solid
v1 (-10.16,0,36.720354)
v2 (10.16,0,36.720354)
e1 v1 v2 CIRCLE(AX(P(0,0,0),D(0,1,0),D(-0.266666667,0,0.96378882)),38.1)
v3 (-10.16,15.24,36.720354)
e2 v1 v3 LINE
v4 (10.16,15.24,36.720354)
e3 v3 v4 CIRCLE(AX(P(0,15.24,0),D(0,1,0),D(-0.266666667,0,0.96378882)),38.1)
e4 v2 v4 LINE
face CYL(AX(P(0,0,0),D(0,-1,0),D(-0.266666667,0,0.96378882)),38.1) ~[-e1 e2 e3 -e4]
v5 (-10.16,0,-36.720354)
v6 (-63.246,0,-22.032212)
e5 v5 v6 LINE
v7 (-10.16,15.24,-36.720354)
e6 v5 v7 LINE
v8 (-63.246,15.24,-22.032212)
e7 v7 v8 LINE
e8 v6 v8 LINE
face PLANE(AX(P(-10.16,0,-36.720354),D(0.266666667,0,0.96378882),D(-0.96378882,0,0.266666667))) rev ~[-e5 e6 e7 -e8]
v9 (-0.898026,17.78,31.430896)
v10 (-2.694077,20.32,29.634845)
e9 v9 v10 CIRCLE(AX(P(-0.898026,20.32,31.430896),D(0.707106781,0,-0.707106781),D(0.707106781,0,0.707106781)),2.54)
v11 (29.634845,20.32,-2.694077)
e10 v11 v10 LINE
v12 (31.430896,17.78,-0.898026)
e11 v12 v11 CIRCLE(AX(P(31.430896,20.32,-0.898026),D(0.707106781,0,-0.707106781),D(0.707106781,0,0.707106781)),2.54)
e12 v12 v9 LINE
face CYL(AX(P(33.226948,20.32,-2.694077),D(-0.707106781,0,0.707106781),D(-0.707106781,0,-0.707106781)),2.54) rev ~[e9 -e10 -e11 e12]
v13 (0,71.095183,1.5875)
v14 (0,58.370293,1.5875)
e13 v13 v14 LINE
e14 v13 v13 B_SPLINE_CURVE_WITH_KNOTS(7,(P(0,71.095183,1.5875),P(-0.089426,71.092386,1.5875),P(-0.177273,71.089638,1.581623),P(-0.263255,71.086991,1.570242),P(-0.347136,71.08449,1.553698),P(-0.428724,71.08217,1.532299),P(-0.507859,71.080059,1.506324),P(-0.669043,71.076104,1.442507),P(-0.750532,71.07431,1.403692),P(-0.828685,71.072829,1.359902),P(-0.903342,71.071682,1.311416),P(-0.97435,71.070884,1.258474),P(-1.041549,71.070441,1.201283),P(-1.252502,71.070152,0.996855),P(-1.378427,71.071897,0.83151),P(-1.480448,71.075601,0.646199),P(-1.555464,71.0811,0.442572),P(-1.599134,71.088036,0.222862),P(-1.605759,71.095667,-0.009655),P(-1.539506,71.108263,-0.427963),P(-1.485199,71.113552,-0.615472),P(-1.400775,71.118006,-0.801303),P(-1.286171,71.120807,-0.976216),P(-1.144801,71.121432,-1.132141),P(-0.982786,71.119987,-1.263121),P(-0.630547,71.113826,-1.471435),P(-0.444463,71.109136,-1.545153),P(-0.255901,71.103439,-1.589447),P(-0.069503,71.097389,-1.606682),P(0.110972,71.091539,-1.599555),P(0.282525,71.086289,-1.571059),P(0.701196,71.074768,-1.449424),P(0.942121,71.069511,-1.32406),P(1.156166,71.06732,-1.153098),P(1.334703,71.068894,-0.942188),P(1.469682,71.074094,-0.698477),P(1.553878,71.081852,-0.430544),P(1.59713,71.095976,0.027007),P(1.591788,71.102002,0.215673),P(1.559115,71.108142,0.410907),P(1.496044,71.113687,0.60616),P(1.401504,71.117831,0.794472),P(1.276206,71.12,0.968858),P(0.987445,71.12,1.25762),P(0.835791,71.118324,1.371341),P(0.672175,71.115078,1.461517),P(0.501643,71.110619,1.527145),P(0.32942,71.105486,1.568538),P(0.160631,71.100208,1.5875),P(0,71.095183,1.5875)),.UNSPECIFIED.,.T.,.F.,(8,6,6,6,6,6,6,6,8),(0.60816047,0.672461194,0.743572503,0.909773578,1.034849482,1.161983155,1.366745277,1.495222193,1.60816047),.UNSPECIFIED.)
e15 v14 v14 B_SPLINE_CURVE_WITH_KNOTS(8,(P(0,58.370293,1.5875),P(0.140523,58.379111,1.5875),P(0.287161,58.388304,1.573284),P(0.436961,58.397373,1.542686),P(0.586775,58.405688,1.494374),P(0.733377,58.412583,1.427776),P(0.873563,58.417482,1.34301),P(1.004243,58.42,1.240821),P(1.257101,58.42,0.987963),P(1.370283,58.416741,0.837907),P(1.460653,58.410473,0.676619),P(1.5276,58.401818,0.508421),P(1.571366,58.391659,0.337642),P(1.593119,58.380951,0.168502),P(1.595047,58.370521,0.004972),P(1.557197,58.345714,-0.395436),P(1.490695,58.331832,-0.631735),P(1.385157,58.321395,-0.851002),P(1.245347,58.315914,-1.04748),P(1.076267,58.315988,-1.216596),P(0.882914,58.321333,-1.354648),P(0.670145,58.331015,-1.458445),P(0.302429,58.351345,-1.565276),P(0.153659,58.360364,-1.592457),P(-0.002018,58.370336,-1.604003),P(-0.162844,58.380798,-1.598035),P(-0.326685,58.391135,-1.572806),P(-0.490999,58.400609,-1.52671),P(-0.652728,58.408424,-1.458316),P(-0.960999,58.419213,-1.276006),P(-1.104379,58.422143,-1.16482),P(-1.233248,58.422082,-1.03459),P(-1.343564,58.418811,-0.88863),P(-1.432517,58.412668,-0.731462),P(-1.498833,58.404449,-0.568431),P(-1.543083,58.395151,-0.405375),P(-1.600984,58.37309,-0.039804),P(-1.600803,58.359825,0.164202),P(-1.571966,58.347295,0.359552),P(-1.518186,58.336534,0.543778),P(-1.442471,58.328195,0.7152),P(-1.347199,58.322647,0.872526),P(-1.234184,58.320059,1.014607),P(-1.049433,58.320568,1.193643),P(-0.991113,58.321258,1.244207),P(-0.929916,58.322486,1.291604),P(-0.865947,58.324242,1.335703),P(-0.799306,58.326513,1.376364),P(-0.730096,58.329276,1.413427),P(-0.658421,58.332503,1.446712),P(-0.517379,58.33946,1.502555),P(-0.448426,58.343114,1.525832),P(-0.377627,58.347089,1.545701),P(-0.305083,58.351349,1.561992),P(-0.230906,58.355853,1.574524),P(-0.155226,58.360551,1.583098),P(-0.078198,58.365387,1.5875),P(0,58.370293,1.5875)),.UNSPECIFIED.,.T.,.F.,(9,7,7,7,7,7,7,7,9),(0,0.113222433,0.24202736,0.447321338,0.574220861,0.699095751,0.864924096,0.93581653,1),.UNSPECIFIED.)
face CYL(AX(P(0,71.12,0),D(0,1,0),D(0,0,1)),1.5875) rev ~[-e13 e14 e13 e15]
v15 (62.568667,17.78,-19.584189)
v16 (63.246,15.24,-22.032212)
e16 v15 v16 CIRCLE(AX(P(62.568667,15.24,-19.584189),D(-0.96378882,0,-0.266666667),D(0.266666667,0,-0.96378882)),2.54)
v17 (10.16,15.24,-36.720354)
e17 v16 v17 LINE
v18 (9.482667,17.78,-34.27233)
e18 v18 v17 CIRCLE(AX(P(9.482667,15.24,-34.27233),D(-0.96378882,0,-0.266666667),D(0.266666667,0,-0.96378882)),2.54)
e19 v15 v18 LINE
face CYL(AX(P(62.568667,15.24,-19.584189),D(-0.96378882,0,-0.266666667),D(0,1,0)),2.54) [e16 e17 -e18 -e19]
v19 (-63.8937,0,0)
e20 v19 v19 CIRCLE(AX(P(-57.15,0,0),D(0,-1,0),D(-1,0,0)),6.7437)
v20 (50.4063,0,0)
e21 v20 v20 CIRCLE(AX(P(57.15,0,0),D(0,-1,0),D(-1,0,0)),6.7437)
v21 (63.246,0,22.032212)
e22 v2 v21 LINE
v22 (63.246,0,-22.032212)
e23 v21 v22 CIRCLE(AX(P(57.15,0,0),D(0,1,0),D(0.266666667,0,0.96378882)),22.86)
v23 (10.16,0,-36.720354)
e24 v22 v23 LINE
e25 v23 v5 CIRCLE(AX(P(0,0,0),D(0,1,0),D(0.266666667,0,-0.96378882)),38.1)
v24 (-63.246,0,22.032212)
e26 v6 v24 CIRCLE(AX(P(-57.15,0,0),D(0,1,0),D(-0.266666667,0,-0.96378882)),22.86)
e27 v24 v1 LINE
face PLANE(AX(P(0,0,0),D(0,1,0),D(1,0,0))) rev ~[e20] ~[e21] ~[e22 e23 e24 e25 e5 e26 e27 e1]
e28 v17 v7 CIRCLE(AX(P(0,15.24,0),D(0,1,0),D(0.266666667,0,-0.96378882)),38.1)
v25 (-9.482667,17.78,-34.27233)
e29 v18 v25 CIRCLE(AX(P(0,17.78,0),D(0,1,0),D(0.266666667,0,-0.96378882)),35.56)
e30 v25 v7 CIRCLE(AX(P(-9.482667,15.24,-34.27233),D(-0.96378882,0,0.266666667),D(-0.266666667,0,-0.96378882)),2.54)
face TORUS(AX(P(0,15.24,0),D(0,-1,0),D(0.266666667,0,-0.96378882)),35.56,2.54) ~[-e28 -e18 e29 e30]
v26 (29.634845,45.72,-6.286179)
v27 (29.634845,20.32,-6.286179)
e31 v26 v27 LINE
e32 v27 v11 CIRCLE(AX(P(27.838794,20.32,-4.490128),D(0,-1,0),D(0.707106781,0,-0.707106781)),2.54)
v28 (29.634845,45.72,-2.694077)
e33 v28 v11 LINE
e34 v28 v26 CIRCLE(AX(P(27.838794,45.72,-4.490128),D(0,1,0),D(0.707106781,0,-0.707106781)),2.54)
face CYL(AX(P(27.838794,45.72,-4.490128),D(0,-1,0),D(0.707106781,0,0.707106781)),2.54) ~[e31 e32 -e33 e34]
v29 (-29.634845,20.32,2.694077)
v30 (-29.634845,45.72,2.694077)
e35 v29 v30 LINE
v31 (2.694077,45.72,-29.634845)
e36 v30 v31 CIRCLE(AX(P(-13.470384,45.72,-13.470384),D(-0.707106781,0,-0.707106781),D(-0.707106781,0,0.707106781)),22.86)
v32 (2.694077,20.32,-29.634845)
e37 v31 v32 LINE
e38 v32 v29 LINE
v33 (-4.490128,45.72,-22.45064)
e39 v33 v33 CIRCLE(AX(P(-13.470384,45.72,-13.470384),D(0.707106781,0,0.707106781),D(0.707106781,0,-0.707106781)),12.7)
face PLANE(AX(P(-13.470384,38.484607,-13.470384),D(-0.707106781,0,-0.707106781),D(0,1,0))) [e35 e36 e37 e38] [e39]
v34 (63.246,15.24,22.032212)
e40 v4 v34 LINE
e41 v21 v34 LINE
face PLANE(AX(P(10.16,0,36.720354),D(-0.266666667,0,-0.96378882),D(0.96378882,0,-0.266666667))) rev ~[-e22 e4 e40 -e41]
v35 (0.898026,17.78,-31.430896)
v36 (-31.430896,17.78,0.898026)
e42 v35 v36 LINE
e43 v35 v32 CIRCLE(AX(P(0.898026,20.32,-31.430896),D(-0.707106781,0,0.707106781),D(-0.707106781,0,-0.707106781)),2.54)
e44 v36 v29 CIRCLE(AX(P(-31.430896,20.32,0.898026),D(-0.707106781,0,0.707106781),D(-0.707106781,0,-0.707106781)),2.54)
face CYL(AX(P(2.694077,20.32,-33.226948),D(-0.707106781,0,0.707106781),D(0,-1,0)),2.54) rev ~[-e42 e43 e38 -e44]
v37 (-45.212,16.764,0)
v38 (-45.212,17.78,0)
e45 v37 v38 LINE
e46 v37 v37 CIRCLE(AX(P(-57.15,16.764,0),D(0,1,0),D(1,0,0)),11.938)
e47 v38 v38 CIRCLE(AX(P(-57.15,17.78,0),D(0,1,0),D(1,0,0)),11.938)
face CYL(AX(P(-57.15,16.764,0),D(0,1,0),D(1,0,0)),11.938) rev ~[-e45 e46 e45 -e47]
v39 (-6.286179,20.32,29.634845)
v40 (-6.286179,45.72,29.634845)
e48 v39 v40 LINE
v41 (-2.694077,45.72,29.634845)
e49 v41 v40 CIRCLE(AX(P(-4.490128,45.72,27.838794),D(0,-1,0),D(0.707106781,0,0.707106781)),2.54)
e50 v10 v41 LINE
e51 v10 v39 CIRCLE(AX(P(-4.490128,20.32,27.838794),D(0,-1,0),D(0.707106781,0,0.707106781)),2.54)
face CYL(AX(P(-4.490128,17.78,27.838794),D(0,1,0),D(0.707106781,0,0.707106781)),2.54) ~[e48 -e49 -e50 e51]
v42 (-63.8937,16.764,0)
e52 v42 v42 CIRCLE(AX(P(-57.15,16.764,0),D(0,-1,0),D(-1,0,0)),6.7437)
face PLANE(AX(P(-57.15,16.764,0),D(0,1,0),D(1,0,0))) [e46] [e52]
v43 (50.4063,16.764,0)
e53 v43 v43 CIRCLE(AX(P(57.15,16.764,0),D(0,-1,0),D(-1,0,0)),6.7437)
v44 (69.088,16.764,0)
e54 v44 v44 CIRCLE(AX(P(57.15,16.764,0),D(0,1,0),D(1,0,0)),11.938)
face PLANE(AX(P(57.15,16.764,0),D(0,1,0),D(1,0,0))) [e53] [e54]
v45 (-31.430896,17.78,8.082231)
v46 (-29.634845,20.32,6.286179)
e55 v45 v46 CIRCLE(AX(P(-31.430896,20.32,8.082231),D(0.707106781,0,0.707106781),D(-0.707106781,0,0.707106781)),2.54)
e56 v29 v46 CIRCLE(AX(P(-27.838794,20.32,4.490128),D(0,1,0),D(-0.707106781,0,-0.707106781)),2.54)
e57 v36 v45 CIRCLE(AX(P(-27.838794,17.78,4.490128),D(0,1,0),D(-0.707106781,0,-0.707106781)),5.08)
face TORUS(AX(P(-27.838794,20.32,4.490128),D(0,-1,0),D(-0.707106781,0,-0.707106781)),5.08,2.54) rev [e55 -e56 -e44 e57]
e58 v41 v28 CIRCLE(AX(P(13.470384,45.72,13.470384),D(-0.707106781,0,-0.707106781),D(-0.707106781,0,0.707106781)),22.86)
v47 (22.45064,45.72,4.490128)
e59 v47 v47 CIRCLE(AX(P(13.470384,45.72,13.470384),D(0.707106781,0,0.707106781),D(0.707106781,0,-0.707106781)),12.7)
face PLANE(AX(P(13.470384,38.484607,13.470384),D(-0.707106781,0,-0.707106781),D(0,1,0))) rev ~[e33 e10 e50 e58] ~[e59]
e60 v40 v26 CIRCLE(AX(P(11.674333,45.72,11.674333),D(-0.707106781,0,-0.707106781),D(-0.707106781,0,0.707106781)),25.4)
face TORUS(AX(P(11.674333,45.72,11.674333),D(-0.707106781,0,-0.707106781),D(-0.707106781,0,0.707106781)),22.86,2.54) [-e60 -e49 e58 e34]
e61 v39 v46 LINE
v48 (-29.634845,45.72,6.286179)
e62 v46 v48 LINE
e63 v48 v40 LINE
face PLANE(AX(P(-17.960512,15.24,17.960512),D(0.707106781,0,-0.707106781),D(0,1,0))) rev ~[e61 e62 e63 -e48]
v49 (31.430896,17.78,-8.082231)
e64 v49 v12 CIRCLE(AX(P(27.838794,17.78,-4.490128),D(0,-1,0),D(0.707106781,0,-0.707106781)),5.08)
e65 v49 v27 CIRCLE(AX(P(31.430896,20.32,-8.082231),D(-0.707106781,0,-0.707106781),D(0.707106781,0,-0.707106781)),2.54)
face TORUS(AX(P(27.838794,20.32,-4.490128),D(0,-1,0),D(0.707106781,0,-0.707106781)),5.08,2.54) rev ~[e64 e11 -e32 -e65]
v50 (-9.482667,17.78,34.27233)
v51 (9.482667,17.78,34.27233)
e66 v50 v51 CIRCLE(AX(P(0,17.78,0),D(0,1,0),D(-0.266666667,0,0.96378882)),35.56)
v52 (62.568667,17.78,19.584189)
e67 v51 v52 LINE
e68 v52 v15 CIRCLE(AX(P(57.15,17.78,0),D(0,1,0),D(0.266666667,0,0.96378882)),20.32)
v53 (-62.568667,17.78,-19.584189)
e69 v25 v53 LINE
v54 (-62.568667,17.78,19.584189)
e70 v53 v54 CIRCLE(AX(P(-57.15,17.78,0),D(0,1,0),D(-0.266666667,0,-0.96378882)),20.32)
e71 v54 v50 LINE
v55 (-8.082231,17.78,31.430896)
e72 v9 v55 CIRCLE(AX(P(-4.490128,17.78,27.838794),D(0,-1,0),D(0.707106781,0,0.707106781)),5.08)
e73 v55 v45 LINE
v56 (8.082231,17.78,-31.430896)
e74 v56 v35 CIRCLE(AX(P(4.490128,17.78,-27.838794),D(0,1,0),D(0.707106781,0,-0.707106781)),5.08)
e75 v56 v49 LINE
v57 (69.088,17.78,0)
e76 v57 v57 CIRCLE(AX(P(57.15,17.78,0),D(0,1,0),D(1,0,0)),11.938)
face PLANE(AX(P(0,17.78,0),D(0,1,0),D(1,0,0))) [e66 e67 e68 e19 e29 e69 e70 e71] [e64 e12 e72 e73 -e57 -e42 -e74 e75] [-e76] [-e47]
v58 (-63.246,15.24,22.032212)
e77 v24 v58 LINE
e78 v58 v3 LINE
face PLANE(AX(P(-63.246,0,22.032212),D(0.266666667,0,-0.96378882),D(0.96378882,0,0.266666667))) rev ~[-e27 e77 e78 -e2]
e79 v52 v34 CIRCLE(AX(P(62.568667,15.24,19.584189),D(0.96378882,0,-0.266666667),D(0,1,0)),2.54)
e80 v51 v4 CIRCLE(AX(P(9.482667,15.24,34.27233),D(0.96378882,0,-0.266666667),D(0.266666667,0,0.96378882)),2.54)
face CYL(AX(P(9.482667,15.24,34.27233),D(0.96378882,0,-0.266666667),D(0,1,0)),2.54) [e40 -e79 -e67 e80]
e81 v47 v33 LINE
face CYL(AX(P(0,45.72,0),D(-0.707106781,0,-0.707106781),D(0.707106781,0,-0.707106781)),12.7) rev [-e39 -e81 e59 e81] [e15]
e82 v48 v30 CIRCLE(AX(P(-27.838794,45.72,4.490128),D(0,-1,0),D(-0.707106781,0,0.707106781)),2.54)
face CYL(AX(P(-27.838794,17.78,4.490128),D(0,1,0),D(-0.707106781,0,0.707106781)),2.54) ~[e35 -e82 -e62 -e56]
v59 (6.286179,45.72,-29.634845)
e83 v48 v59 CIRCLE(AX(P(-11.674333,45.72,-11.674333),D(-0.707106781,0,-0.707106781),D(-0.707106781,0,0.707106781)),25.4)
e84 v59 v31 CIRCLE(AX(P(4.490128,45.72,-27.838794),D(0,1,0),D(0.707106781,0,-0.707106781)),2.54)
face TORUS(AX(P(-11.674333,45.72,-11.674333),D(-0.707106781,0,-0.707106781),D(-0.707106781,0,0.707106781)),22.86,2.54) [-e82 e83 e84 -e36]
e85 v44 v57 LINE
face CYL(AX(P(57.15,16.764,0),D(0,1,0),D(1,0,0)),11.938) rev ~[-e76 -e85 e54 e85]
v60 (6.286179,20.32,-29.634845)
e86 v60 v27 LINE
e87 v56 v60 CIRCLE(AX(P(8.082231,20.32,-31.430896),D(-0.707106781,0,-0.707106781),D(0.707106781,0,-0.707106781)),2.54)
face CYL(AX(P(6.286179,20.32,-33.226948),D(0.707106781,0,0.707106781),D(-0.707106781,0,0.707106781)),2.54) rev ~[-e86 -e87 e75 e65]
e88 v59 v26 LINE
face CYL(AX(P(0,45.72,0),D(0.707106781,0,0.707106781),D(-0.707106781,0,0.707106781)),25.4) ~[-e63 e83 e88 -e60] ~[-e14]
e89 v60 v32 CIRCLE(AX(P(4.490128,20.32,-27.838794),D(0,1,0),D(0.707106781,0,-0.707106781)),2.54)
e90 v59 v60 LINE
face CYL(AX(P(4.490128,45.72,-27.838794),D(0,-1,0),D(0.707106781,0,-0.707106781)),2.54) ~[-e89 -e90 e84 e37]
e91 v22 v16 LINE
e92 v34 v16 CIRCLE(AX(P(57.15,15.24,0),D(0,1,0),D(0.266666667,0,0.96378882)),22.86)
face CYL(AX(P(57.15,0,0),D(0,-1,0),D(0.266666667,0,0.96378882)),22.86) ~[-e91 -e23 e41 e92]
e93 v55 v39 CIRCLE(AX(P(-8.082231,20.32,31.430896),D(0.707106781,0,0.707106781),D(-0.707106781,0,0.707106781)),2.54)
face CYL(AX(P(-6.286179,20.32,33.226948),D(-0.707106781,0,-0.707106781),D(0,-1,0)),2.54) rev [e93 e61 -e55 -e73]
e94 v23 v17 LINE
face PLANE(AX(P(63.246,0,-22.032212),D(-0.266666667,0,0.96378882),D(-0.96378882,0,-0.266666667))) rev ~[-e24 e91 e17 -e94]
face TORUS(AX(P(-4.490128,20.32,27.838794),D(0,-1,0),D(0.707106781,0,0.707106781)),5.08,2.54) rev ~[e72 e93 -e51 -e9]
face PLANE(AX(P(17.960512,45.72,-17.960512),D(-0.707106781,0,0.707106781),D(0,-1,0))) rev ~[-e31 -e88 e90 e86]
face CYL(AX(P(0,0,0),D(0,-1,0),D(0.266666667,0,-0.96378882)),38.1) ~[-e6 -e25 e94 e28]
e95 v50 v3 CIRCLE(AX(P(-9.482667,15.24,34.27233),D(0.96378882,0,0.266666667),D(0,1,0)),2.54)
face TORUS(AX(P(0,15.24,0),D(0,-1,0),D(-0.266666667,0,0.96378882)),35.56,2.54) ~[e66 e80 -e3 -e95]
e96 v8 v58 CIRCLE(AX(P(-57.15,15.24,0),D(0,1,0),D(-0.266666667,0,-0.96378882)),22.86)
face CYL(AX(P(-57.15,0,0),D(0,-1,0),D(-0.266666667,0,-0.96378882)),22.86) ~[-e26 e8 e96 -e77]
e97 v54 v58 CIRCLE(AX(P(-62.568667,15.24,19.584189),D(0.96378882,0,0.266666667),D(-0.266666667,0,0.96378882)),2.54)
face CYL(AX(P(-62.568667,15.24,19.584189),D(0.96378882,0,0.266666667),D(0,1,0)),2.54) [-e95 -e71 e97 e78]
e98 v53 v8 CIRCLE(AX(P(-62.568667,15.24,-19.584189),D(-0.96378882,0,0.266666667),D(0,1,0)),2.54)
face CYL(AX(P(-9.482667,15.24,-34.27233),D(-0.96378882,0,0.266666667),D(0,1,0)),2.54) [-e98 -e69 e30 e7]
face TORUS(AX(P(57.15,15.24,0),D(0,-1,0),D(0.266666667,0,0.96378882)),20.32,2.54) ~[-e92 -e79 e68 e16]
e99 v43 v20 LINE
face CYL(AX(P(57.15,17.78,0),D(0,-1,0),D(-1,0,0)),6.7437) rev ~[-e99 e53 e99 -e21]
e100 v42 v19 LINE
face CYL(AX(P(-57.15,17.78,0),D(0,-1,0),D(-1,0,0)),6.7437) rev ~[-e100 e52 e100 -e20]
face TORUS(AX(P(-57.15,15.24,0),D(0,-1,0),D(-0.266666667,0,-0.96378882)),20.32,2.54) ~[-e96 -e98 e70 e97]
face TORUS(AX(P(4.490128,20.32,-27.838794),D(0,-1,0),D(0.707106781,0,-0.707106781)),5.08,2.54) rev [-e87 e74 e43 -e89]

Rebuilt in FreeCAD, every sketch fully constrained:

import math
import FreeCAD as App
import Part
import Sketcher
from FreeCAD import Vector
Q = App.Units.Quantity


def edges_at(feature, points):
    """Names of the edges that pass closest to the given points."""
    edges = feature.Shape.Edges
    near = lambda p: min(range(len(edges)), key=lambda i: edges[i].distToShape(Part.Vertex(*p))[0])
    return sorted({f"Edge{near(p) + 1}" for p in points})

doc = App.newDocument("Part")
body = doc.addObject("PartDesign::Body", "Body")

sketch1 = body.newObject("Sketcher::SketchObject", "Sketch")
sketch1.AttachmentSupport = (doc.getObject("XZ_Plane"), [""])
sketch1.MapMode = "FlatFace"
sketch1.addGeometry([
    Part.LineSegment(Vector(63, -22, 0), Vector(10, -37, 0)),
    Part.ArcOfCircle(Part.Circle(Vector(0, 0, 0), Vector(0, 0, 1), 38), math.radians(-105), math.radians(-75)),
    Part.LineSegment(Vector(-10, -37, 0), Vector(-63, -22, 0)),
    Part.ArcOfCircle(Part.Circle(Vector(-57, 0, 0), Vector(0, 0, 1), 23), math.radians(105), math.radians(255)),
    Part.LineSegment(Vector(-63, 22, 0), Vector(-10, 37, 0)),
    Part.ArcOfCircle(Part.Circle(Vector(0, 0, 0), Vector(0, 0, 1), 38), math.radians(75), math.radians(105)),
    Part.LineSegment(Vector(10, 37, 0), Vector(63, 22, 0)),
    Part.ArcOfCircle(Part.Circle(Vector(57, 0, 0), Vector(0, 0, 1), 23), math.radians(-75), math.radians(75)),
], False)
sketch1.addConstraint([
    Sketcher.Constraint("Tangent", 0, 2, 1, 2),
    Sketcher.Constraint("Tangent", 1, 1, 2, 1),
    Sketcher.Constraint("Tangent", 2, 2, 3, 2),
    Sketcher.Constraint("Tangent", 3, 1, 4, 1),
    Sketcher.Constraint("Tangent", 4, 2, 5, 2),
    Sketcher.Constraint("Tangent", 5, 1, 6, 1),
    Sketcher.Constraint("Tangent", 6, 2, 7, 2),
    Sketcher.Constraint("Tangent", 7, 1, 0, 1),
    Sketcher.Constraint("Coincident", 1, 3, -1, 1),
    Sketcher.Constraint("Coincident", 5, 3, -1, 1),
    Sketcher.Constraint("Equal", 1, 5),
    Sketcher.Constraint("Equal", 3, 7),
    Sketcher.Constraint("Symmetric", 3, 3, 7, 3, -1, 1),
    Sketcher.Constraint("PointOnObject", 3, 3, -1),
    Sketcher.Constraint("Radius", 1, Q("1.5 in")),
    Sketcher.Constraint("Radius", 3, Q("0.9 in")),
    Sketcher.Constraint("DistanceX", -1, 1, 0, 2, Q("0.4 in")),
])
pad1 = body.newObject("PartDesign::Pad", "Pad")
pad1.Profile = sketch1
pad1.Length = Q("0.7 in")
pad1.Reversed = True

sketch2 = body.newObject("Sketcher::SketchObject", "Sketch001")
sketch2.AttachmentSupport = (doc.getObject("XZ_Plane"), [""])
sketch2.MapMode = "FlatFace"
sketch2.AttachmentOffset = App.Placement(Vector(0, 0, -0.7 * 25.4), App.Rotation())
sketch2.addGeometry([
    Part.Circle(Vector(-57, 0, 0), Vector(0, 0, 1), 7),
    Part.Circle(Vector(57, 0, 0), Vector(0, 0, 1), 7),
], False)
sketch2.addConstraint([
    Sketcher.Constraint("Equal", 0, 1),
    Sketcher.Constraint("Symmetric", 0, 3, 1, 3, -1, 1),
    Sketcher.Constraint("PointOnObject", 0, 3, -1),
    Sketcher.Constraint("Diameter", 0, Q("0.531 in")),
    Sketcher.Constraint("DistanceX", 0, 3, 1, 3, Q("4.5 in")),
])
doc.recompute()
hole = body.newObject("PartDesign::Hole", "Hole")
hole.Profile = sketch2
hole.ThreadType = "None"
hole.Diameter = Q("0.531 in")
hole.DepthType = "ThroughAll"
hole.HoleCutType = "Counterbore"
hole.HoleCutDiameter = Q("0.94 in")
hole.HoleCutDepth = Q("0.04 in")
hole.Reversed = True

sketch3 = body.newObject("Sketcher::SketchObject", "Sketch002")
sketch3.Placement = App.Placement(Vector(0, 0, 0), App.Rotation(Vector(0, -1, 0), Vector(0.707106781, 0, -0.707106781), Vector(0.707106781, 0, 0.707106781), "ZXY"))
sketch3.addGeometry([
    Part.LineSegment(Vector(-15, 25, 0), Vector(-46, 25, 0)),
    Part.ArcOfCircle(Part.Circle(Vector(-46, 0, 0), Vector(0, 0, 1), 25), math.radians(90), math.radians(270)),
    Part.LineSegment(Vector(-46, -25, 0), Vector(-15, -25, 0)),
    Part.LineSegment(Vector(-15, -25, 0), Vector(-15, 25, 0)),
    Part.Circle(Vector(-46, 0, 0), Vector(0, 0, 1), 13),
], False)
sketch3.addConstraint([
    Sketcher.Constraint("Tangent", 0, 2, 1, 1),
    Sketcher.Constraint("Tangent", 1, 2, 2, 1),
    Sketcher.Constraint("Coincident", 2, 2, 3, 1),
    Sketcher.Constraint("Coincident", 3, 2, 0, 1),
    Sketcher.Constraint("Horizontal", 0),
    Sketcher.Constraint("Horizontal", 2),
    Sketcher.Constraint("Vertical", 3),
    Sketcher.Constraint("Coincident", 4, 3, 1, 3),
    Sketcher.Constraint("PointOnObject", 1, 3, -1),
    Sketcher.Constraint("Diameter", 4, Q("1 in")),
    Sketcher.Constraint("Radius", 1, Q("1 in")),
    Sketcher.Constraint("DistanceX", 0, 2, 0, 1, Q("1.2 in")),
    Sketcher.Constraint("DistanceX", 1, 3, -1, 1, Q("1.8 in")),
])
pad2 = body.newObject("PartDesign::Pad", "Pad001")
pad2.Profile = sketch3
pad2.Length = Q("1.5 in")
pad2.Midplane = True

sketch4 = body.newObject("Sketcher::SketchObject", "Sketch003")
sketch4.AttachmentSupport = (doc.getObject("XZ_Plane"), [""])
sketch4.MapMode = "FlatFace"
sketch4.AttachmentOffset = App.Placement(Vector(0, 0, -2.8 * 25.4), App.Rotation())
sketch4.addGeometry(Part.Circle(Vector(0, 0, 0), Vector(0, 0, 1), 1.6), False)
sketch4.addConstraint([
    Sketcher.Constraint("Coincident", 0, 3, -1, 1),
    Sketcher.Constraint("Diameter", 0, Q("0.125 in")),
])
pocket1 = body.newObject("PartDesign::Pocket", "Pocket")
pocket1.Profile = sketch4
pocket1.Type = "UpToFirst"
pocket1.Reversed = True
doc.recompute()

fillet = body.newObject("PartDesign::Fillet", "Fillet")
fillet.Base = (pocket1, edges_at(pocket1, [
    (0, 17.78, -38.1),
    (-36.703, 17.78, -29.376),
    (-80.01, 17.78, 0),
    (-36.703, 17.78, 29.376),
    (0, 17.78, 38.1),
    (36.703, 17.78, 29.376),
    (80.01, 17.78, 0),
    (17.961, 17.78, -17.961),
    (-13.47, 17.78, -13.47),
    (13.47, 17.78, 13.47),
    (-17.961, 17.78, 17.961),
    (-4.49, 31.75, 31.431),
    (31.431, 31.75, -4.49),
    (13.47, 71.12, 13.47),
    (-13.47, 71.12, -13.47),
    (-31.431, 31.75, 4.49),
    (4.49, 31.75, -31.431),
    (36.703, 17.78, -29.376),
]))
fillet.Radius = Q("0.1 in")

doc.recompute()
